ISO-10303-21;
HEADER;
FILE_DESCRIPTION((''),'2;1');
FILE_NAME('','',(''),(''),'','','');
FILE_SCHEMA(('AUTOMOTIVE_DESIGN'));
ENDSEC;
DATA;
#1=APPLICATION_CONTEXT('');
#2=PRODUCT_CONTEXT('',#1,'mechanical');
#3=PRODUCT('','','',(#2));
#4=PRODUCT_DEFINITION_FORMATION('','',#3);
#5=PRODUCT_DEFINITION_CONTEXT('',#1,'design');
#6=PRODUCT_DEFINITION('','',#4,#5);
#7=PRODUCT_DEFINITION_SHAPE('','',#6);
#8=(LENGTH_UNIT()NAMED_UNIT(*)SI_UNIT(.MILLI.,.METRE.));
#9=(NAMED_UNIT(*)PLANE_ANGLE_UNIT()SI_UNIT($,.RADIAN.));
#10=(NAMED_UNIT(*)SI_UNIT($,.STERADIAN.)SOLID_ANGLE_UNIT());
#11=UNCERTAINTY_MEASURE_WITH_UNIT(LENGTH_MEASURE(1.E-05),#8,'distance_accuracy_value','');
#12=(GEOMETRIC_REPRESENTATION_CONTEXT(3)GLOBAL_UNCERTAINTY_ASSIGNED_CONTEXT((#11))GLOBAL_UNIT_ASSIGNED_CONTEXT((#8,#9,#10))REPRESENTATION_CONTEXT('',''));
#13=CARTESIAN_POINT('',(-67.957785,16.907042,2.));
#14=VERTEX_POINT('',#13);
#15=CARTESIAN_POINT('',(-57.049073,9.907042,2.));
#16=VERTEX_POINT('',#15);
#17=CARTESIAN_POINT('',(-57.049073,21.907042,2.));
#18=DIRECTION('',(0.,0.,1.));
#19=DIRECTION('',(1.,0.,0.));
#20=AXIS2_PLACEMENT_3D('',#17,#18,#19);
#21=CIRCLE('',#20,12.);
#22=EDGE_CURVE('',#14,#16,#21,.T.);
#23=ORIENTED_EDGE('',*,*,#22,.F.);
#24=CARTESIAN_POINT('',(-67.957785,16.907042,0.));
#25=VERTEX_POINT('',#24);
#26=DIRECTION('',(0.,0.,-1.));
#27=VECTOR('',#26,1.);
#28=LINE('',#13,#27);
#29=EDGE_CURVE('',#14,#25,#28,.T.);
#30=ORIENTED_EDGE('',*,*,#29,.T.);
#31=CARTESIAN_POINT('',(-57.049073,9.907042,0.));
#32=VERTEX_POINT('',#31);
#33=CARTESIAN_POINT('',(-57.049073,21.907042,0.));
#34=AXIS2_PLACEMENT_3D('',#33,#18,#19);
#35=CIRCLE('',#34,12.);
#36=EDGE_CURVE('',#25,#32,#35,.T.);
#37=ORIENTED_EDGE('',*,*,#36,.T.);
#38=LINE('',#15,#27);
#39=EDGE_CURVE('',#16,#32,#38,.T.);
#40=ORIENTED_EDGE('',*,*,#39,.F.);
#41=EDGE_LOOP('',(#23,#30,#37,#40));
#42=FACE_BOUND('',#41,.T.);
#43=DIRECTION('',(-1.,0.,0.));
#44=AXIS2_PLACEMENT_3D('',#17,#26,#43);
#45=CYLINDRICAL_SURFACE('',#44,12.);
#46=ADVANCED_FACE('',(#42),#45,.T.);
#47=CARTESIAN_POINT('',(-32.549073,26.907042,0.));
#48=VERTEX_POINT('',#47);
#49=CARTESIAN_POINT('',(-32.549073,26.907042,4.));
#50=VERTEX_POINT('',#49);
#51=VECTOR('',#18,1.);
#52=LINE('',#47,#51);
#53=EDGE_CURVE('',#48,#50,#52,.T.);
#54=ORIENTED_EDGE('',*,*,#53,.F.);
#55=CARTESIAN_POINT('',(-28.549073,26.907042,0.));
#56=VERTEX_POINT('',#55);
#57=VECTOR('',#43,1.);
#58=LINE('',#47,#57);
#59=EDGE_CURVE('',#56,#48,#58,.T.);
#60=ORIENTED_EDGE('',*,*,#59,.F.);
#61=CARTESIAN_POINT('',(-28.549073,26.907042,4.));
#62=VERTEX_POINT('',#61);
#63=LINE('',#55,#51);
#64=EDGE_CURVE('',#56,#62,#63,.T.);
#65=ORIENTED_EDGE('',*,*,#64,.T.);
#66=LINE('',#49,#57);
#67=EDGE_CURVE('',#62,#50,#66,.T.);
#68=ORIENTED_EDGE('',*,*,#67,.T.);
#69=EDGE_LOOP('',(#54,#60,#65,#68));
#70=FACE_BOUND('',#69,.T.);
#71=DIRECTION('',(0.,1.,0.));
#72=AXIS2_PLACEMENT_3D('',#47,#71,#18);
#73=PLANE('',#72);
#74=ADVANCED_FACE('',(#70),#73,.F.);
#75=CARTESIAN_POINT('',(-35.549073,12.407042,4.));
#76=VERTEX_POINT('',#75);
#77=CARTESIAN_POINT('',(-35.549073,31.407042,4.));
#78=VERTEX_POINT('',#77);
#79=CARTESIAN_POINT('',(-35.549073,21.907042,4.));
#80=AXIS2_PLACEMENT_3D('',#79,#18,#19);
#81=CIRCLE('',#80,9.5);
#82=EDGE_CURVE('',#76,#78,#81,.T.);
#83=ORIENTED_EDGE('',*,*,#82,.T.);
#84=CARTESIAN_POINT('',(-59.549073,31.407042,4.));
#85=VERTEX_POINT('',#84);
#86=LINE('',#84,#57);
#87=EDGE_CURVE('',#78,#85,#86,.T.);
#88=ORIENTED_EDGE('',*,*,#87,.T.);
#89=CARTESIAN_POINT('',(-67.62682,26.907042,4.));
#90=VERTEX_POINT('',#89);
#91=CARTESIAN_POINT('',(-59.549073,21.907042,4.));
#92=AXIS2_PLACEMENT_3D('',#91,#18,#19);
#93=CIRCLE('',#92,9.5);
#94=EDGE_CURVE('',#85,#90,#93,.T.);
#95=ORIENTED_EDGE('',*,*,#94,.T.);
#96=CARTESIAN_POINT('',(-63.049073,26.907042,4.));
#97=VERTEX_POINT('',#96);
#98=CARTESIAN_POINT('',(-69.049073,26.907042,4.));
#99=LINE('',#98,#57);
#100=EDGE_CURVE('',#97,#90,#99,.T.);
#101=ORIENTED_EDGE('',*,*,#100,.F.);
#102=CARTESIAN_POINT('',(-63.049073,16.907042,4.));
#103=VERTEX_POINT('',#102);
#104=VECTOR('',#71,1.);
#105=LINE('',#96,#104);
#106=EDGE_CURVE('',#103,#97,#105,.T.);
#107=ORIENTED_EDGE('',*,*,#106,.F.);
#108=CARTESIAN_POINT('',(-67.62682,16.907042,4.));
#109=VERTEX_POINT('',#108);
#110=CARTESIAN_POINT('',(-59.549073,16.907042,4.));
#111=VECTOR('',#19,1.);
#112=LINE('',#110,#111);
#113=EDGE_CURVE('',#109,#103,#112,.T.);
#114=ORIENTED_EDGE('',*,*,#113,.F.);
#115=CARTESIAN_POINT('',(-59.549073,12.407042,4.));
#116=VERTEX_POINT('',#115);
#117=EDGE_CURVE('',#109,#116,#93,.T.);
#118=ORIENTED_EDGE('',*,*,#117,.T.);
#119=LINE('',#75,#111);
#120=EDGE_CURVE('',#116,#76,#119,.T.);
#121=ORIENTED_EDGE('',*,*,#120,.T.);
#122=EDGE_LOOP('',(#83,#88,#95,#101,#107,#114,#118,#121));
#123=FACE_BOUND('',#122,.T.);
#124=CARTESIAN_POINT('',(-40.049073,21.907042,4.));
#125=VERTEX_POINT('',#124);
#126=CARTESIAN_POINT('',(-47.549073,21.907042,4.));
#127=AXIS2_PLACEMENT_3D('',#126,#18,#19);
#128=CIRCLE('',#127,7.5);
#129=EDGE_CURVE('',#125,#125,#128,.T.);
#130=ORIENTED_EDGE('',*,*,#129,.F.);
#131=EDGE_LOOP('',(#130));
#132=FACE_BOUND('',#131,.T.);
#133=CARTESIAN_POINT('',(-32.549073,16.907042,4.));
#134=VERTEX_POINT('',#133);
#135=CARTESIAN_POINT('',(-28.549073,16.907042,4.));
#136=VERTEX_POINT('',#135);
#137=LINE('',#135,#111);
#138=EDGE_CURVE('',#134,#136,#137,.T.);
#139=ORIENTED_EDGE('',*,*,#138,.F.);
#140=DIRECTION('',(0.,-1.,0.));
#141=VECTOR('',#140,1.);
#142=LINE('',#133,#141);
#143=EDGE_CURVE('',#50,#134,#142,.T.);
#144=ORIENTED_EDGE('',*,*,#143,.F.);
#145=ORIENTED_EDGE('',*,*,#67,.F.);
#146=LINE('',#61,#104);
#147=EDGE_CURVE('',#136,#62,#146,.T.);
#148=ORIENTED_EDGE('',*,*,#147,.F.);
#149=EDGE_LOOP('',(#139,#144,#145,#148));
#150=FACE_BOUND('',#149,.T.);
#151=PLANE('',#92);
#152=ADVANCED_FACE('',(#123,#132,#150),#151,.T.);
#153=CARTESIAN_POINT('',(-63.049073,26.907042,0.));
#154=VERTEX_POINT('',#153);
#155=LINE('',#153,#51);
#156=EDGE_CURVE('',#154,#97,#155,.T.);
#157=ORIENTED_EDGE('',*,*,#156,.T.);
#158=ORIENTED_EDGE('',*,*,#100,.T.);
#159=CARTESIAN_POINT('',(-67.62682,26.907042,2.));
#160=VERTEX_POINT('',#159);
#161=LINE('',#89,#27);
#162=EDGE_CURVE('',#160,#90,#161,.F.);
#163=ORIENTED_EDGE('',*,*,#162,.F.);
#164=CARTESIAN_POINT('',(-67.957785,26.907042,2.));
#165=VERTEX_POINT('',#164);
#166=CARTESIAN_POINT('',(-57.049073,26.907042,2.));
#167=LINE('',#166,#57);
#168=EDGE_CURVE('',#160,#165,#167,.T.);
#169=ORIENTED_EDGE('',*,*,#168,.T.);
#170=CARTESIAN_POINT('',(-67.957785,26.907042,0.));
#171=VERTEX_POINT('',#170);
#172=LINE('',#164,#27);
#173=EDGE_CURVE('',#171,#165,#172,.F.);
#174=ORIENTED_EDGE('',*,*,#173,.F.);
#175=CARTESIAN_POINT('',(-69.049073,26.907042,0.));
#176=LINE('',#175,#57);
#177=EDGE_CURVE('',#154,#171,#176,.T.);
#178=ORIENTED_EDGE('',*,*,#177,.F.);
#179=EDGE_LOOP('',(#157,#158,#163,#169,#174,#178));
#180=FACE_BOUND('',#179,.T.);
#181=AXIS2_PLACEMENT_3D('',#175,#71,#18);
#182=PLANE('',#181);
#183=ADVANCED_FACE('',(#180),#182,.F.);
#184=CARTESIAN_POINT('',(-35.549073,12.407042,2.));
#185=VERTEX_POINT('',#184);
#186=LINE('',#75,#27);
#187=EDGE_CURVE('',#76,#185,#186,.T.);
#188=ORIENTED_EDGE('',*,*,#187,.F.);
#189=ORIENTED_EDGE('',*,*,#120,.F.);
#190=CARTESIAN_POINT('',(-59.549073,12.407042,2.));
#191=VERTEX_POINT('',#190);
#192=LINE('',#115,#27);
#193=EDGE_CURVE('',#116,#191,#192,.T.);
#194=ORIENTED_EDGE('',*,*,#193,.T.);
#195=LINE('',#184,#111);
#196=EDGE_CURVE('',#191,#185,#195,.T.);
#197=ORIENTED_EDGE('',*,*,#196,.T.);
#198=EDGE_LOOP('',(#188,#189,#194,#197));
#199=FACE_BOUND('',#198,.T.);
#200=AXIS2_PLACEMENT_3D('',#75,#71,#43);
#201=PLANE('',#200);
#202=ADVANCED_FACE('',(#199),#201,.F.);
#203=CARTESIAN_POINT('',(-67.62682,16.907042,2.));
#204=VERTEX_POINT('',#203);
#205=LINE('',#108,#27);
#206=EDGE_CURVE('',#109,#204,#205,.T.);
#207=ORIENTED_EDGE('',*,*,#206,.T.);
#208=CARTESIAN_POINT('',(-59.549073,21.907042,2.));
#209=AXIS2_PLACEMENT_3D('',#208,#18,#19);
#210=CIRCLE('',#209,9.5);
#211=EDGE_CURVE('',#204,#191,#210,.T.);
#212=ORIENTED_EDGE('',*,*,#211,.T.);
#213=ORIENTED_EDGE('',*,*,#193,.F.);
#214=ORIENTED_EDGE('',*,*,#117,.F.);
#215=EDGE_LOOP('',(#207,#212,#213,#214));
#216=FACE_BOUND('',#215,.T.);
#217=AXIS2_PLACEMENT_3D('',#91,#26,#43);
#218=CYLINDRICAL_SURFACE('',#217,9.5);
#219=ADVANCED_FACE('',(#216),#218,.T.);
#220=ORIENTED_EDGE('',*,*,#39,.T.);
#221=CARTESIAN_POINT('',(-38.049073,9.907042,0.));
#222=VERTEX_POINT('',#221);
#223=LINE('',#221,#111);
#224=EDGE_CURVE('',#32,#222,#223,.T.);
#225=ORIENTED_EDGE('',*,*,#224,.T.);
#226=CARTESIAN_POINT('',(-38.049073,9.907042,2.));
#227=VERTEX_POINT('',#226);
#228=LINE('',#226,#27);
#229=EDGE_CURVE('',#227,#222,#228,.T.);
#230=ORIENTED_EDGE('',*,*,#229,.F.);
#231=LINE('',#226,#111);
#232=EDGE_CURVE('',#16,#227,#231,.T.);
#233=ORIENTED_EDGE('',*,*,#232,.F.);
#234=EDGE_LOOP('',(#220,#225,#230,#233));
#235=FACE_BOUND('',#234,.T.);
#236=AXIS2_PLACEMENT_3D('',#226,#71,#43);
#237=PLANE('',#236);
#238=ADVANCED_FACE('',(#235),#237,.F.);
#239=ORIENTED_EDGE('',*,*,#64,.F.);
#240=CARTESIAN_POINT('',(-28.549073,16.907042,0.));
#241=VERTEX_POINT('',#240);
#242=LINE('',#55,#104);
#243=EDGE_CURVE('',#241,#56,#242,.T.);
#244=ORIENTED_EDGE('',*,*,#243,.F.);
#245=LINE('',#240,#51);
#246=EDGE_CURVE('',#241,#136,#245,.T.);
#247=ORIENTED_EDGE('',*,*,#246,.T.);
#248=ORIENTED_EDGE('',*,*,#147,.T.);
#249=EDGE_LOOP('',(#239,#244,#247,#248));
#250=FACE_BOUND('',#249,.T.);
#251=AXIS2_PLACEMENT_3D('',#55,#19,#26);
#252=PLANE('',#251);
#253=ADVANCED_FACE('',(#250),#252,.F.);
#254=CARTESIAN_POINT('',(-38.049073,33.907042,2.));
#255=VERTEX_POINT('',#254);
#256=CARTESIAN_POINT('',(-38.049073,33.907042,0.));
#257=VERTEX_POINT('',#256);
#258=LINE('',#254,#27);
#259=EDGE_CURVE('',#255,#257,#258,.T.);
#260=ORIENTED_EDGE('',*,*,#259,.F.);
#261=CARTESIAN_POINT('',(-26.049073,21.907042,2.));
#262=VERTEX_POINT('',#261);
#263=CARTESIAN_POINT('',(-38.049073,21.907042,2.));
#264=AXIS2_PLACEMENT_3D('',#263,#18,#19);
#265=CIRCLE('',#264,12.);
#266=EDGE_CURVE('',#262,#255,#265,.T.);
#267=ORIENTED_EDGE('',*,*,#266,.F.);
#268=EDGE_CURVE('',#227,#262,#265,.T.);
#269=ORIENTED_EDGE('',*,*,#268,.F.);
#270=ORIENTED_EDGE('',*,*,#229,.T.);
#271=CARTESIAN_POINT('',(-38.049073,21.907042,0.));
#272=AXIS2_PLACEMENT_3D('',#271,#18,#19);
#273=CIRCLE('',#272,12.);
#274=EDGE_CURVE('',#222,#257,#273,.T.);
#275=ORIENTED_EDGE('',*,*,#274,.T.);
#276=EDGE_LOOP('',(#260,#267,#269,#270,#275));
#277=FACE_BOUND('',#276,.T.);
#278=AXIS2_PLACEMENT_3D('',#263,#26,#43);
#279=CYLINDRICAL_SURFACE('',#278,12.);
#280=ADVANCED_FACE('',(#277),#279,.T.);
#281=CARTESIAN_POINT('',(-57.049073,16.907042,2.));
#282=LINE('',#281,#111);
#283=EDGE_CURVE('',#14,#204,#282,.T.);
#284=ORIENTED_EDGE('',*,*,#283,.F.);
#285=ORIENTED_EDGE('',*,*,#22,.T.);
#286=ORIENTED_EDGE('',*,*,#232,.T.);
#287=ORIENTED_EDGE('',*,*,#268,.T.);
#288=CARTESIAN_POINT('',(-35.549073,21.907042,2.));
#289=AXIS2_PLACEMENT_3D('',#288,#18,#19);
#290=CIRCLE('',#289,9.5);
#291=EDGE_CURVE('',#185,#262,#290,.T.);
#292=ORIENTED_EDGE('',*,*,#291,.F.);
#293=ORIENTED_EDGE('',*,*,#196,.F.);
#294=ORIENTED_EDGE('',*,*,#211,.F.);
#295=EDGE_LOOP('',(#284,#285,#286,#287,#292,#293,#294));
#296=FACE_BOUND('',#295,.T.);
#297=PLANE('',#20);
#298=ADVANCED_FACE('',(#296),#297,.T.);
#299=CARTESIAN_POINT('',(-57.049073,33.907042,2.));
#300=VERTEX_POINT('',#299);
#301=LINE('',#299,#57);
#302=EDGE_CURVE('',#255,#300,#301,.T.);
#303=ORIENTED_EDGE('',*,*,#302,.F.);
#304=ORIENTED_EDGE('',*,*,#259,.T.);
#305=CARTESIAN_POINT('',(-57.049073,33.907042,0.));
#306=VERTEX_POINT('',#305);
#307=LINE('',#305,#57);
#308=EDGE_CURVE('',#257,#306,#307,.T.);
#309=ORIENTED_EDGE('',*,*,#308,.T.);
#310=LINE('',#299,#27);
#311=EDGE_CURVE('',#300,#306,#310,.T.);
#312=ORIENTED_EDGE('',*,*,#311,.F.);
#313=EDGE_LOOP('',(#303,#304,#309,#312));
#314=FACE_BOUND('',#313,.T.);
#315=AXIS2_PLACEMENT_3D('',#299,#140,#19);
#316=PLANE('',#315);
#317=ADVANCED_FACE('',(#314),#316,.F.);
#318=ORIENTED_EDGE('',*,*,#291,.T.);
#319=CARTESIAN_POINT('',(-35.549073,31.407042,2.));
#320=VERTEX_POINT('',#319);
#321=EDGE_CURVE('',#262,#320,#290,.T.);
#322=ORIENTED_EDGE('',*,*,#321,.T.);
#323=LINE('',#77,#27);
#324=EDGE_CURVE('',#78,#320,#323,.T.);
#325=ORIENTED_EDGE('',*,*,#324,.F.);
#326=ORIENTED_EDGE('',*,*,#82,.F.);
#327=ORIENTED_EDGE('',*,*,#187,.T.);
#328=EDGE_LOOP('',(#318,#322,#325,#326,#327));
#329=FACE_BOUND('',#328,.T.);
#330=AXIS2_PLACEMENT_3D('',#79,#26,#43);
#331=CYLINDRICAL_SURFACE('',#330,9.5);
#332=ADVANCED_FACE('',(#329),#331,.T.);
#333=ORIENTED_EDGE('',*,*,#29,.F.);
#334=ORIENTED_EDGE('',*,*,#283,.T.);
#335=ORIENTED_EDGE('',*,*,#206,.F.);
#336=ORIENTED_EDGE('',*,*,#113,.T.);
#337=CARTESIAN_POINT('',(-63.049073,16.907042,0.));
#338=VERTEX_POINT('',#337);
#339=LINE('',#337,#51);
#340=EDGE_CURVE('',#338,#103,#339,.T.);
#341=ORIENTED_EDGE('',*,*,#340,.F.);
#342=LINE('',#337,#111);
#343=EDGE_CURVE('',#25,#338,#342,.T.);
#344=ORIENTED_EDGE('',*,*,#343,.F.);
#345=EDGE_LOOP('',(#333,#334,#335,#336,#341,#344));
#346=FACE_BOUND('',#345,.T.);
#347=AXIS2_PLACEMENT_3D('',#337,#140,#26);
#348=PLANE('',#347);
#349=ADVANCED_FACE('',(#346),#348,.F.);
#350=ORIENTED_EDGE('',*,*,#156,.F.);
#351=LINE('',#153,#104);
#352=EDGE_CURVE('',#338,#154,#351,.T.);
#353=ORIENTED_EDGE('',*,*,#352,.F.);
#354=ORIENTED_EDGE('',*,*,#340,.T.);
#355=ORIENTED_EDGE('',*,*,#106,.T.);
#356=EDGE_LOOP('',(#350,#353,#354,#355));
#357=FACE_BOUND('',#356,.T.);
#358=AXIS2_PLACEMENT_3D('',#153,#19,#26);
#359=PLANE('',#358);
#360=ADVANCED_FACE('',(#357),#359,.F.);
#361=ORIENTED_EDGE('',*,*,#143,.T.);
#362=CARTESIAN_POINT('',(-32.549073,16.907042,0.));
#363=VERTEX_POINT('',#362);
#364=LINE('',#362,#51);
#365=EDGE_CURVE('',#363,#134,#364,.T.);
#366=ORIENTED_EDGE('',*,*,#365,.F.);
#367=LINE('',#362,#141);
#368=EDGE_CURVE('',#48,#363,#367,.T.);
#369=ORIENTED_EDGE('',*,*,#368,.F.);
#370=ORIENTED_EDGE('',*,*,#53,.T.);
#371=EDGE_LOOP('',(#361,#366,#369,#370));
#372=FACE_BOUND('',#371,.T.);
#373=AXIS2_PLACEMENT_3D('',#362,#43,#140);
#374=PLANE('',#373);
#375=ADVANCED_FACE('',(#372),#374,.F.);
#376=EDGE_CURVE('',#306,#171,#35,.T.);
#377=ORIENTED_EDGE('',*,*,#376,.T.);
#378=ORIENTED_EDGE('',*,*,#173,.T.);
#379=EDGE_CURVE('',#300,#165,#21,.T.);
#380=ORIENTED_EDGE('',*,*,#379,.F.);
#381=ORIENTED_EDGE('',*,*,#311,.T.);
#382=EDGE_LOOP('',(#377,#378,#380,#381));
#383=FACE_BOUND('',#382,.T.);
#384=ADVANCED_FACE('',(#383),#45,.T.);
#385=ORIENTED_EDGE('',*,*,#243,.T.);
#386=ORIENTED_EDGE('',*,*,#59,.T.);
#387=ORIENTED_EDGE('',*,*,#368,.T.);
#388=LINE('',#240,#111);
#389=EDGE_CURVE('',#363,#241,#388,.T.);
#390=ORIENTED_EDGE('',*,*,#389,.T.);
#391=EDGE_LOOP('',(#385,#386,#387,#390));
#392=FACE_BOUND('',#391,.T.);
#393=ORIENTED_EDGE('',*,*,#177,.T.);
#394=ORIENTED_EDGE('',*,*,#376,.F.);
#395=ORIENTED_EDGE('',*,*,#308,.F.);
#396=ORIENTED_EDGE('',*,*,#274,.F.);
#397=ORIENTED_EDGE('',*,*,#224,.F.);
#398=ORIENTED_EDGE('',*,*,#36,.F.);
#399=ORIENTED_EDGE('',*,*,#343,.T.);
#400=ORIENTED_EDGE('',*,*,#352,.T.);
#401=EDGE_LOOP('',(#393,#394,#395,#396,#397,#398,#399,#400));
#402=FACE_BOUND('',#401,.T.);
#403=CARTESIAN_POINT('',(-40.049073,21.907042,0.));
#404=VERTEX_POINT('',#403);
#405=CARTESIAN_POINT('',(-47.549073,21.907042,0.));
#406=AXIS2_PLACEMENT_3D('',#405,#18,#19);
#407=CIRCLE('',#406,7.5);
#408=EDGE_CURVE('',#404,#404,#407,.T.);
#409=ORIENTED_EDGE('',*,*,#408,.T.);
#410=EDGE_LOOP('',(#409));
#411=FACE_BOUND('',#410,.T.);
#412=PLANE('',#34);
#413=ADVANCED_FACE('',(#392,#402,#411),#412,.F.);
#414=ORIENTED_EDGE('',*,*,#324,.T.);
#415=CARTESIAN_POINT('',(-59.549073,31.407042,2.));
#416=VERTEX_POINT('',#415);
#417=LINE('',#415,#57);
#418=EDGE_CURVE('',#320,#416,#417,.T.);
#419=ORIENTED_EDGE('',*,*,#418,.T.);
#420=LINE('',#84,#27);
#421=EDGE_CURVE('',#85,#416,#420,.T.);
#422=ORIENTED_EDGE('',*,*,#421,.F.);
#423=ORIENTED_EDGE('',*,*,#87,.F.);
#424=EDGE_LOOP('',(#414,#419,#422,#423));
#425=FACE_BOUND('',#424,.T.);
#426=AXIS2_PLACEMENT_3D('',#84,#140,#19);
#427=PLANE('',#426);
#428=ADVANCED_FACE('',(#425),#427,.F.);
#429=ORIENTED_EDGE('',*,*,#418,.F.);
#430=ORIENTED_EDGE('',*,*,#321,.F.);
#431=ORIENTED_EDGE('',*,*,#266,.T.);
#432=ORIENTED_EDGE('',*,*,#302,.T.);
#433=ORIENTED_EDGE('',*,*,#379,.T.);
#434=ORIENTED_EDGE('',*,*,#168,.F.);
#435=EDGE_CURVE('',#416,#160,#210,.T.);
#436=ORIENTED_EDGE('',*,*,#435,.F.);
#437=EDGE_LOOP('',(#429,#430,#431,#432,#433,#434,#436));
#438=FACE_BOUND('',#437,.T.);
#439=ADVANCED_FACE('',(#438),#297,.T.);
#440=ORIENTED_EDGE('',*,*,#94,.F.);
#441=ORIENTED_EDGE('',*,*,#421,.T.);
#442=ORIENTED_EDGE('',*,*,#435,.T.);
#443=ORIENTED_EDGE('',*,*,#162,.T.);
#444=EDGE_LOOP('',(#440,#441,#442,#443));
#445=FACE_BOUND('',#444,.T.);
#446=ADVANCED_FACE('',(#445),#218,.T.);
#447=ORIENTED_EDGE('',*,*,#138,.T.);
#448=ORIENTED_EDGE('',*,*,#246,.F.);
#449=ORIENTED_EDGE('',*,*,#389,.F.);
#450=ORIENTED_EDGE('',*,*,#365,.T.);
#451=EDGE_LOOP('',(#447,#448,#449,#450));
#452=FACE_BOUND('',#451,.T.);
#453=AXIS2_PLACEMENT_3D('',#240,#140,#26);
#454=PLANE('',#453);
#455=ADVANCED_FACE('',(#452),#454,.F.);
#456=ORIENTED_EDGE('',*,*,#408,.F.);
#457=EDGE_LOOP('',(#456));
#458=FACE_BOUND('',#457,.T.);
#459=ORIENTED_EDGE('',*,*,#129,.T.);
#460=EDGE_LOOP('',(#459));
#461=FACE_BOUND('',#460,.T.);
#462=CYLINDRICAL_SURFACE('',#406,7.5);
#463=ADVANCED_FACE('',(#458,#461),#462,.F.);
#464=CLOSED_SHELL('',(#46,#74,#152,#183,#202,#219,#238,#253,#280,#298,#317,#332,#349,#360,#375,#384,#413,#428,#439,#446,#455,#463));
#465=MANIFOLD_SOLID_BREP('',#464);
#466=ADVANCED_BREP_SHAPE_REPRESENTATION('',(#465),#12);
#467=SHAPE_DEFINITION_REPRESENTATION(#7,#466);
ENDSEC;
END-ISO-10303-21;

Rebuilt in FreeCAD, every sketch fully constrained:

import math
import FreeCAD as App
import Part
import Sketcher


def add_polygon(sketch, points):
    """Adds a closed chain of lines whose ends are joined by coincident constraints."""
    first, n = sketch.GeometryCount, len(points)
    for a, b in zip(points, points[1:] + points[:1]):
        sketch.addGeometry(Part.LineSegment(App.Vector(*a, 0), App.Vector(*b, 0)), False)
    for i in range(n):
        sketch.addConstraint(Sketcher.Constraint("Coincident", first + i, 2, first + (i + 1) % n, 1))

doc = App.newDocument("Part")
body = doc.addObject("PartDesign::Body", "Body")

sketch1 = body.newObject("Sketcher::SketchObject", "Sketch")
sketch1.AttachmentSupport = (doc.getObject("XY_Plane"), [""])
sketch1.MapMode = "FlatFace"
sketch1.addGeometry([
    Part.LineSegment(App.Vector(-38.049073, 33.907042, 0), App.Vector(-57.049073, 33.907042, 0)),
    Part.ArcOfCircle(Part.Circle(App.Vector(-57.049073, 21.907042, 0), App.Vector(0, 0, 1), 12), math.radians(90), math.radians(270)),
    Part.LineSegment(App.Vector(-57.049073, 9.907042, 0), App.Vector(-38.049073, 9.907042, 0)),
    Part.ArcOfCircle(Part.Circle(App.Vector(-38.049073, 21.907042, 0), App.Vector(0, 0, 1), 12), math.radians(-90), math.radians(90)),
], False)
sketch1.addConstraint([
    Sketcher.Constraint("Tangent", 0, 2, 1, 1),
    Sketcher.Constraint("Tangent", 1, 2, 2, 1),
    Sketcher.Constraint("Tangent", 2, 2, 3, 1),
    Sketcher.Constraint("Tangent", 3, 2, 0, 1),
    Sketcher.Constraint("Horizontal", 0),
    Sketcher.Constraint("Horizontal", 2),
    Sketcher.Constraint("Radius", 1, 12.0),
    Sketcher.Constraint("DistanceX", 0, 2, 0, 1, 19.0),
    Sketcher.Constraint("DistanceY", -1, 1, 0, 2, 33.907042),
    Sketcher.Constraint("DistanceX", 1, 3, -1, 1, 57.049073),
])
pad1 = body.newObject("PartDesign::Pad", "Pad")
pad1.Profile = sketch1
pad1.Length = 2

sketch2 = body.newObject("Sketcher::SketchObject", "Sketch001")
sketch2.AttachmentSupport = (doc.getObject("XY_Plane"), [""])
sketch2.MapMode = "FlatFace"
sketch2.AttachmentOffset = App.Placement(App.Vector(0, 0, 2), App.Rotation())
sketch2.addGeometry([
    Part.LineSegment(App.Vector(-35.549073, 31.407042, 0), App.Vector(-59.549073, 31.407042, 0)),
    Part.ArcOfCircle(Part.Circle(App.Vector(-59.549073, 21.907042, 0), App.Vector(0, 0, 1), 9.5), math.radians(90), math.radians(270)),
    Part.LineSegment(App.Vector(-59.549073, 12.407042, 0), App.Vector(-35.549073, 12.407042, 0)),
    Part.ArcOfCircle(Part.Circle(App.Vector(-35.549073, 21.907042, 0), App.Vector(0, 0, 1), 9.5), math.radians(-90), math.radians(90)),
], False)
sketch2.addConstraint([
    Sketcher.Constraint("Tangent", 0, 2, 1, 1),
    Sketcher.Constraint("Tangent", 1, 2, 2, 1),
    Sketcher.Constraint("Tangent", 2, 2, 3, 1),
    Sketcher.Constraint("Tangent", 3, 2, 0, 1),
    Sketcher.Constraint("Horizontal", 0),
    Sketcher.Constraint("Horizontal", 2),
    Sketcher.Constraint("Radius", 1, 9.5),
    Sketcher.Constraint("DistanceX", 0, 2, 0, 1, 24.0),
    Sketcher.Constraint("DistanceX", 1, 3, -1, 1, 59.549073),
    Sketcher.Constraint("DistanceY", -1, 1, 1, 3, 21.907042),
])
pad2 = body.newObject("PartDesign::Pad", "Pad001")
pad2.Profile = sketch2
pad2.Length = 2

sketch3 = body.newObject("Sketcher::SketchObject", "Sketch002")
sketch3.AttachmentSupport = (doc.getObject("XY_Plane"), [""])
sketch3.MapMode = "FlatFace"
sketch3.AttachmentOffset = App.Placement(App.Vector(0, 0, 4), App.Rotation())
sketch3.addGeometry(Part.Circle(App.Vector(-47.549073, 21.907042, 0), App.Vector(0, 0, 1), 7.5), False)
add_polygon(sketch3, [(-32.549073, 26.907042), (-32.549073, 16.907042), (-28.549073, 16.907042), (-28.549073, 26.907042)])
add_polygon(sketch3, [(-69.049073, 26.907042), (-69.049073, 16.907042), (-63.049073, 16.907042), (-63.049073, 26.907042)])
sketch3.addConstraint([
    Sketcher.Constraint("Vertical", 1),
    Sketcher.Constraint("Horizontal", 2),
    Sketcher.Constraint("Vertical", 3),
    Sketcher.Constraint("Horizontal", 4),
    Sketcher.Constraint("Vertical", 5),
    Sketcher.Constraint("Horizontal", 6),
    Sketcher.Constraint("Vertical", 7),
    Sketcher.Constraint("Horizontal", 8),
    Sketcher.Constraint("Horizontal", 2, 2, 5, 2),
    Sketcher.Constraint("Horizontal", 4, 2, 7, 2),
    Sketcher.Constraint("Diameter", 0, 15.0),
    Sketcher.Constraint("DistanceX", 2, 1, 2, 2, 4.0),
    Sketcher.Constraint("DistanceX", 6, 1, 6, 2, 6.0),
    Sketcher.Constraint("DistanceY", 1, 2, 1, 1, 10.0),
    Sketcher.Constraint("DistanceX", 0, 3, 1, 2, 15.0),
    Sketcher.Constraint("DistanceY", 1, 2, 0, 3, 5.0),
    Sketcher.Constraint("DistanceX", 5, 2, 0, 3, 21.5),
    Sketcher.Constraint("DistanceX", 0, 3, -1, 1, 47.549073),
    Sketcher.Constraint("DistanceY", -1, 1, 0, 3, 21.907042),
])
pocket1 = body.newObject("PartDesign::Pocket", "Pocket")
pocket1.Profile = sketch3
pocket1.Type = "ThroughAll"

doc.recompute()
